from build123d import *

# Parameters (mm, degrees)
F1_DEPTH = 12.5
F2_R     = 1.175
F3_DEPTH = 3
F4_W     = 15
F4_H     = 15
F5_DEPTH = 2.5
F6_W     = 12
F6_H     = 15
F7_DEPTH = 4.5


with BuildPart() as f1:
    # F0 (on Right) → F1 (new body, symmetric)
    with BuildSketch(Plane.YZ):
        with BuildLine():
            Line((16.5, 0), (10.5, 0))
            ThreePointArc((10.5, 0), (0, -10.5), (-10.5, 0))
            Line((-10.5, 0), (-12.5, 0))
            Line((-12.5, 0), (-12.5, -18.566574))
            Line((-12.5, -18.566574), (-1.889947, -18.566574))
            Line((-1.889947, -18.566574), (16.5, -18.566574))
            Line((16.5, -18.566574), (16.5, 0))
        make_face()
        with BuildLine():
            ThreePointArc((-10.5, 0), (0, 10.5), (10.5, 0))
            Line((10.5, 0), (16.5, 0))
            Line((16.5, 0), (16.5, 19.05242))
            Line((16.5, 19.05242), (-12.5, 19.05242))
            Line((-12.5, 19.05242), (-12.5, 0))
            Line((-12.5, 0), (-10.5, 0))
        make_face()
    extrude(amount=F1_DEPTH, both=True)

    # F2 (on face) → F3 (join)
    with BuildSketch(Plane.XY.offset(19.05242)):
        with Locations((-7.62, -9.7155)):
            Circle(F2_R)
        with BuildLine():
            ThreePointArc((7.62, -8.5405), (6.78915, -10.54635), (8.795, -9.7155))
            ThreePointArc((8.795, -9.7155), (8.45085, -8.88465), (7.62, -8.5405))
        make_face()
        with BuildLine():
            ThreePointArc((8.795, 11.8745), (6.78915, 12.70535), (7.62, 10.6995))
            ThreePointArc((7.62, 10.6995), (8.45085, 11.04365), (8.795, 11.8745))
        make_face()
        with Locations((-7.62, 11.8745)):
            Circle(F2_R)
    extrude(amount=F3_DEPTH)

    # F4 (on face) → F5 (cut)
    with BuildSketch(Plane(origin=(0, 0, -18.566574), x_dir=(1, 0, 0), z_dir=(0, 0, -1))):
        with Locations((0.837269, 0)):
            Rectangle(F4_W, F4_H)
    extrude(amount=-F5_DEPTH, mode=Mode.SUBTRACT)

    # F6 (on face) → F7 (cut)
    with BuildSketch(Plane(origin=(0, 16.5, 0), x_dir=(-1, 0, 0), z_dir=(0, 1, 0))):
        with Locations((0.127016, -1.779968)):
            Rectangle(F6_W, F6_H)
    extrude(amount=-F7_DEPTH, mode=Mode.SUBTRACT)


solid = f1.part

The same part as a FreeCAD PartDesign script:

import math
import FreeCAD as App
import Part
import Sketcher

doc = App.newDocument("Part")
body = doc.addObject("PartDesign::Body", "Body")

sketch1 = body.newObject("Sketcher::SketchObject", "Sketch")
sketch1.AttachmentSupport = (doc.getObject("YZ_Plane"), [""])
sketch1.MapMode = "FlatFace"
sketch1.addGeometry([
    Part.LineSegment(App.Vector(-12, -19, 0), App.Vector(16, -19, 0)),
    Part.LineSegment(App.Vector(16, -19, 0), App.Vector(16, 19, 0)),
    Part.LineSegment(App.Vector(16, 19, 0), App.Vector(-12, 19, 0)),
    Part.LineSegment(App.Vector(-12, 19, 0), App.Vector(-12, -19, 0)),
    Part.Circle(App.Vector(0, 0, 0), App.Vector(0, 0, 1), 10),
], False)
sketch1.addConstraint([
    Sketcher.Constraint("Coincident", 0, 2, 1, 1),
    Sketcher.Constraint("Coincident", 1, 2, 2, 1),
    Sketcher.Constraint("Coincident", 2, 2, 3, 1),
    Sketcher.Constraint("Coincident", 3, 2, 0, 1),
    Sketcher.Constraint("Horizontal", 0),
    Sketcher.Constraint("Vertical", 1),
    Sketcher.Constraint("Horizontal", 2),
    Sketcher.Constraint("Vertical", 3),
    Sketcher.Constraint("Coincident", 4, 3, -1, 1),
    Sketcher.Constraint("Diameter", 4, 21.0),
    Sketcher.Constraint("DistanceX", 0, 1, 0, 2, 29.0),
    Sketcher.Constraint("DistanceX", -1, 1, 0, 2, 16.5),
    Sketcher.Constraint("DistanceY", 1, 1, 1, 2, 37.618994),
    Sketcher.Constraint("DistanceY", -1, 1, 1, 2, 19.05242),
])
pad1 = body.newObject("PartDesign::Pad", "Pad")
pad1.Profile = sketch1
pad1.Length = 25
pad1.Midplane = True

sketch2 = body.newObject("Sketcher::SketchObject", "Sketch001")
sketch2.AttachmentSupport = (doc.getObject("XY_Plane"), [""])
sketch2.MapMode = "FlatFace"
sketch2.AttachmentOffset = App.Placement(App.Vector(0, 0, 19.05242), App.Rotation())
sketch2.addGeometry([
    Part.Circle(App.Vector(-7.6, -9.7, 0), App.Vector(0, 0, 1), 1.2),
    Part.ArcOfCircle(Part.Circle(App.Vector(7.6, -9.7, 0), App.Vector(0, 0, 1), 1.2), math.radians(90), math.radians(360)),
    Part.ArcOfCircle(Part.Circle(App.Vector(7.6, -9.7, 0), App.Vector(0, 0, 1), 1.2), math.radians(0), math.radians(90)),
    Part.ArcOfCircle(Part.Circle(App.Vector(7.6, 11.9, 0), App.Vector(0, 0, 1), 1.2), math.radians(0), math.radians(270)),
    Part.ArcOfCircle(Part.Circle(App.Vector(7.6, 11.9, 0), App.Vector(0, 0, 1), 1.2), math.radians(-90), math.radians(0)),
    Part.Circle(App.Vector(-7.6, 11.9, 0), App.Vector(0, 0, 1), 1.2),
], False)
sketch2.addConstraint([
    Sketcher.Constraint("Tangent", 1, 1, 2, 2),
    Sketcher.Constraint("Coincident", 2, 1, 1, 2),
    Sketcher.Constraint("Tangent", 3, 1, 4, 2),
    Sketcher.Constraint("Coincident", 4, 1, 3, 2),
    Sketcher.Constraint("Equal", 0, 1),
    Sketcher.Constraint("Equal", 2, 3),
    Sketcher.Constraint("Equal", 4, 5),
    Sketcher.Constraint("Symmetric", 0, 3, 1, 3, -2),
    Sketcher.Constraint("Symmetric", 3, 3, 5, 3, -2),
    Sketcher.Constraint("Horizontal", 1, 3, 2, 1),
    Sketcher.Constraint("Horizontal", 5, 3, 3, 1),
    Sketcher.Constraint("Vertical", 2, 3, 3, 3),
    Sketcher.Constraint("Vertical", 4, 3, 1, 1),
    Sketcher.Constraint("Vertical", 1, 1, 4, 1),
    Sketcher.Constraint("Diameter", 0, 2.35),
    Sketcher.Constraint("DistanceX", 0, 3, -1, 1, 7.62),
    Sketcher.Constraint("DistanceY", 1, 3, 3, 3, 21.589999),
    Sketcher.Constraint("DistanceY", 0, 3, -1, 1, 9.7155),
])
pad2 = body.newObject("PartDesign::Pad", "Pad001")
pad2.Profile = sketch2
pad2.Length = 3

sketch3 = body.newObject("Sketcher::SketchObject", "Sketch002")
sketch3.AttachmentSupport = (doc.getObject("XY_Plane"), [""])
sketch3.MapMode = "FlatFace"
sketch3.AttachmentOffset = App.Placement(App.Vector(0, 0, -18.566574), App.Rotation())
sketch3.addGeometry([
    Part.LineSegment(App.Vector(-7, -8, 0), App.Vector(-7, 8, 0)),
    Part.LineSegment(App.Vector(-7, 8, 0), App.Vector(8, 8, 0)),
    Part.LineSegment(App.Vector(8, 8, 0), App.Vector(8, -8, 0)),
    Part.LineSegment(App.Vector(8, -8, 0), App.Vector(-7, -8, 0)),
], False)
sketch3.addConstraint([
    Sketcher.Constraint("Coincident", 0, 2, 1, 1),
    Sketcher.Constraint("Coincident", 1, 2, 2, 1),
    Sketcher.Constraint("Coincident", 2, 2, 3, 1),
    Sketcher.Constraint("Coincident", 3, 2, 0, 1),
    Sketcher.Constraint("Vertical", 0),
    Sketcher.Constraint("Horizontal", 1),
    Sketcher.Constraint("Vertical", 2),
    Sketcher.Constraint("Horizontal", 3),
    Sketcher.Constraint("Equal", 3, 0),
    Sketcher.Constraint("DistanceX", 1, 1, 1, 2, 15.0),
    Sketcher.Constraint("DistanceY", -1, 1, 0, 2, 7.5),
    Sketcher.Constraint("DistanceX", 0, 2, -1, 1, 6.662731),
])
pocket1 = body.newObject("PartDesign::Pocket", "Pocket")
pocket1.Profile = sketch3
pocket1.Length = 2.5
pocket1.Reversed = True

sketch4 = body.newObject("Sketcher::SketchObject", "Sketch003")
sketch4.AttachmentSupport = (doc.getObject("XZ_Plane"), [""])
sketch4.MapMode = "FlatFace"
sketch4.AttachmentOffset = App.Placement(App.Vector(0, 0, -16.5), App.Rotation())
sketch4.addGeometry([
    Part.LineSegment(App.Vector(6, 6, 0), App.Vector(6, -9, 0)),
    Part.LineSegment(App.Vector(6, -9, 0), App.Vector(-6, -9, 0)),
    Part.LineSegment(App.Vector(-6, -9, 0), App.Vector(-6, 6, 0)),
    Part.LineSegment(App.Vector(-6, 6, 0), App.Vector(6, 6, 0)),
], False)
sketch4.addConstraint([
    Sketcher.Constraint("Coincident", 0, 2, 1, 1),
    Sketcher.Constraint("Coincident", 1, 2, 2, 1),
    Sketcher.Constraint("Coincident", 2, 2, 3, 1),
    Sketcher.Constraint("Coincident", 3, 2, 0, 1),
    Sketcher.Constraint("Vertical", 0),
    Sketcher.Constraint("Horizontal", 1),
    Sketcher.Constraint("Vertical", 2),
    Sketcher.Constraint("Horizontal", 3),
    Sketcher.Constraint("DistanceX", 1, 2, 1, 1, 12.0),
    Sketcher.Constraint("DistanceY", 0, 2, 0, 1, 15.0),
    Sketcher.Constraint("DistanceY", -1, 1, 2, 2, 5.720032),
    Sketcher.Constraint("DistanceX", -1, 1, 0, 2, 5.872984),
])
pocket2 = body.newObject("PartDesign::Pocket", "Pocket001")
pocket2.Profile = sketch4
pocket2.Length = 4.5
pocket2.Reversed = True

doc.recompute()
